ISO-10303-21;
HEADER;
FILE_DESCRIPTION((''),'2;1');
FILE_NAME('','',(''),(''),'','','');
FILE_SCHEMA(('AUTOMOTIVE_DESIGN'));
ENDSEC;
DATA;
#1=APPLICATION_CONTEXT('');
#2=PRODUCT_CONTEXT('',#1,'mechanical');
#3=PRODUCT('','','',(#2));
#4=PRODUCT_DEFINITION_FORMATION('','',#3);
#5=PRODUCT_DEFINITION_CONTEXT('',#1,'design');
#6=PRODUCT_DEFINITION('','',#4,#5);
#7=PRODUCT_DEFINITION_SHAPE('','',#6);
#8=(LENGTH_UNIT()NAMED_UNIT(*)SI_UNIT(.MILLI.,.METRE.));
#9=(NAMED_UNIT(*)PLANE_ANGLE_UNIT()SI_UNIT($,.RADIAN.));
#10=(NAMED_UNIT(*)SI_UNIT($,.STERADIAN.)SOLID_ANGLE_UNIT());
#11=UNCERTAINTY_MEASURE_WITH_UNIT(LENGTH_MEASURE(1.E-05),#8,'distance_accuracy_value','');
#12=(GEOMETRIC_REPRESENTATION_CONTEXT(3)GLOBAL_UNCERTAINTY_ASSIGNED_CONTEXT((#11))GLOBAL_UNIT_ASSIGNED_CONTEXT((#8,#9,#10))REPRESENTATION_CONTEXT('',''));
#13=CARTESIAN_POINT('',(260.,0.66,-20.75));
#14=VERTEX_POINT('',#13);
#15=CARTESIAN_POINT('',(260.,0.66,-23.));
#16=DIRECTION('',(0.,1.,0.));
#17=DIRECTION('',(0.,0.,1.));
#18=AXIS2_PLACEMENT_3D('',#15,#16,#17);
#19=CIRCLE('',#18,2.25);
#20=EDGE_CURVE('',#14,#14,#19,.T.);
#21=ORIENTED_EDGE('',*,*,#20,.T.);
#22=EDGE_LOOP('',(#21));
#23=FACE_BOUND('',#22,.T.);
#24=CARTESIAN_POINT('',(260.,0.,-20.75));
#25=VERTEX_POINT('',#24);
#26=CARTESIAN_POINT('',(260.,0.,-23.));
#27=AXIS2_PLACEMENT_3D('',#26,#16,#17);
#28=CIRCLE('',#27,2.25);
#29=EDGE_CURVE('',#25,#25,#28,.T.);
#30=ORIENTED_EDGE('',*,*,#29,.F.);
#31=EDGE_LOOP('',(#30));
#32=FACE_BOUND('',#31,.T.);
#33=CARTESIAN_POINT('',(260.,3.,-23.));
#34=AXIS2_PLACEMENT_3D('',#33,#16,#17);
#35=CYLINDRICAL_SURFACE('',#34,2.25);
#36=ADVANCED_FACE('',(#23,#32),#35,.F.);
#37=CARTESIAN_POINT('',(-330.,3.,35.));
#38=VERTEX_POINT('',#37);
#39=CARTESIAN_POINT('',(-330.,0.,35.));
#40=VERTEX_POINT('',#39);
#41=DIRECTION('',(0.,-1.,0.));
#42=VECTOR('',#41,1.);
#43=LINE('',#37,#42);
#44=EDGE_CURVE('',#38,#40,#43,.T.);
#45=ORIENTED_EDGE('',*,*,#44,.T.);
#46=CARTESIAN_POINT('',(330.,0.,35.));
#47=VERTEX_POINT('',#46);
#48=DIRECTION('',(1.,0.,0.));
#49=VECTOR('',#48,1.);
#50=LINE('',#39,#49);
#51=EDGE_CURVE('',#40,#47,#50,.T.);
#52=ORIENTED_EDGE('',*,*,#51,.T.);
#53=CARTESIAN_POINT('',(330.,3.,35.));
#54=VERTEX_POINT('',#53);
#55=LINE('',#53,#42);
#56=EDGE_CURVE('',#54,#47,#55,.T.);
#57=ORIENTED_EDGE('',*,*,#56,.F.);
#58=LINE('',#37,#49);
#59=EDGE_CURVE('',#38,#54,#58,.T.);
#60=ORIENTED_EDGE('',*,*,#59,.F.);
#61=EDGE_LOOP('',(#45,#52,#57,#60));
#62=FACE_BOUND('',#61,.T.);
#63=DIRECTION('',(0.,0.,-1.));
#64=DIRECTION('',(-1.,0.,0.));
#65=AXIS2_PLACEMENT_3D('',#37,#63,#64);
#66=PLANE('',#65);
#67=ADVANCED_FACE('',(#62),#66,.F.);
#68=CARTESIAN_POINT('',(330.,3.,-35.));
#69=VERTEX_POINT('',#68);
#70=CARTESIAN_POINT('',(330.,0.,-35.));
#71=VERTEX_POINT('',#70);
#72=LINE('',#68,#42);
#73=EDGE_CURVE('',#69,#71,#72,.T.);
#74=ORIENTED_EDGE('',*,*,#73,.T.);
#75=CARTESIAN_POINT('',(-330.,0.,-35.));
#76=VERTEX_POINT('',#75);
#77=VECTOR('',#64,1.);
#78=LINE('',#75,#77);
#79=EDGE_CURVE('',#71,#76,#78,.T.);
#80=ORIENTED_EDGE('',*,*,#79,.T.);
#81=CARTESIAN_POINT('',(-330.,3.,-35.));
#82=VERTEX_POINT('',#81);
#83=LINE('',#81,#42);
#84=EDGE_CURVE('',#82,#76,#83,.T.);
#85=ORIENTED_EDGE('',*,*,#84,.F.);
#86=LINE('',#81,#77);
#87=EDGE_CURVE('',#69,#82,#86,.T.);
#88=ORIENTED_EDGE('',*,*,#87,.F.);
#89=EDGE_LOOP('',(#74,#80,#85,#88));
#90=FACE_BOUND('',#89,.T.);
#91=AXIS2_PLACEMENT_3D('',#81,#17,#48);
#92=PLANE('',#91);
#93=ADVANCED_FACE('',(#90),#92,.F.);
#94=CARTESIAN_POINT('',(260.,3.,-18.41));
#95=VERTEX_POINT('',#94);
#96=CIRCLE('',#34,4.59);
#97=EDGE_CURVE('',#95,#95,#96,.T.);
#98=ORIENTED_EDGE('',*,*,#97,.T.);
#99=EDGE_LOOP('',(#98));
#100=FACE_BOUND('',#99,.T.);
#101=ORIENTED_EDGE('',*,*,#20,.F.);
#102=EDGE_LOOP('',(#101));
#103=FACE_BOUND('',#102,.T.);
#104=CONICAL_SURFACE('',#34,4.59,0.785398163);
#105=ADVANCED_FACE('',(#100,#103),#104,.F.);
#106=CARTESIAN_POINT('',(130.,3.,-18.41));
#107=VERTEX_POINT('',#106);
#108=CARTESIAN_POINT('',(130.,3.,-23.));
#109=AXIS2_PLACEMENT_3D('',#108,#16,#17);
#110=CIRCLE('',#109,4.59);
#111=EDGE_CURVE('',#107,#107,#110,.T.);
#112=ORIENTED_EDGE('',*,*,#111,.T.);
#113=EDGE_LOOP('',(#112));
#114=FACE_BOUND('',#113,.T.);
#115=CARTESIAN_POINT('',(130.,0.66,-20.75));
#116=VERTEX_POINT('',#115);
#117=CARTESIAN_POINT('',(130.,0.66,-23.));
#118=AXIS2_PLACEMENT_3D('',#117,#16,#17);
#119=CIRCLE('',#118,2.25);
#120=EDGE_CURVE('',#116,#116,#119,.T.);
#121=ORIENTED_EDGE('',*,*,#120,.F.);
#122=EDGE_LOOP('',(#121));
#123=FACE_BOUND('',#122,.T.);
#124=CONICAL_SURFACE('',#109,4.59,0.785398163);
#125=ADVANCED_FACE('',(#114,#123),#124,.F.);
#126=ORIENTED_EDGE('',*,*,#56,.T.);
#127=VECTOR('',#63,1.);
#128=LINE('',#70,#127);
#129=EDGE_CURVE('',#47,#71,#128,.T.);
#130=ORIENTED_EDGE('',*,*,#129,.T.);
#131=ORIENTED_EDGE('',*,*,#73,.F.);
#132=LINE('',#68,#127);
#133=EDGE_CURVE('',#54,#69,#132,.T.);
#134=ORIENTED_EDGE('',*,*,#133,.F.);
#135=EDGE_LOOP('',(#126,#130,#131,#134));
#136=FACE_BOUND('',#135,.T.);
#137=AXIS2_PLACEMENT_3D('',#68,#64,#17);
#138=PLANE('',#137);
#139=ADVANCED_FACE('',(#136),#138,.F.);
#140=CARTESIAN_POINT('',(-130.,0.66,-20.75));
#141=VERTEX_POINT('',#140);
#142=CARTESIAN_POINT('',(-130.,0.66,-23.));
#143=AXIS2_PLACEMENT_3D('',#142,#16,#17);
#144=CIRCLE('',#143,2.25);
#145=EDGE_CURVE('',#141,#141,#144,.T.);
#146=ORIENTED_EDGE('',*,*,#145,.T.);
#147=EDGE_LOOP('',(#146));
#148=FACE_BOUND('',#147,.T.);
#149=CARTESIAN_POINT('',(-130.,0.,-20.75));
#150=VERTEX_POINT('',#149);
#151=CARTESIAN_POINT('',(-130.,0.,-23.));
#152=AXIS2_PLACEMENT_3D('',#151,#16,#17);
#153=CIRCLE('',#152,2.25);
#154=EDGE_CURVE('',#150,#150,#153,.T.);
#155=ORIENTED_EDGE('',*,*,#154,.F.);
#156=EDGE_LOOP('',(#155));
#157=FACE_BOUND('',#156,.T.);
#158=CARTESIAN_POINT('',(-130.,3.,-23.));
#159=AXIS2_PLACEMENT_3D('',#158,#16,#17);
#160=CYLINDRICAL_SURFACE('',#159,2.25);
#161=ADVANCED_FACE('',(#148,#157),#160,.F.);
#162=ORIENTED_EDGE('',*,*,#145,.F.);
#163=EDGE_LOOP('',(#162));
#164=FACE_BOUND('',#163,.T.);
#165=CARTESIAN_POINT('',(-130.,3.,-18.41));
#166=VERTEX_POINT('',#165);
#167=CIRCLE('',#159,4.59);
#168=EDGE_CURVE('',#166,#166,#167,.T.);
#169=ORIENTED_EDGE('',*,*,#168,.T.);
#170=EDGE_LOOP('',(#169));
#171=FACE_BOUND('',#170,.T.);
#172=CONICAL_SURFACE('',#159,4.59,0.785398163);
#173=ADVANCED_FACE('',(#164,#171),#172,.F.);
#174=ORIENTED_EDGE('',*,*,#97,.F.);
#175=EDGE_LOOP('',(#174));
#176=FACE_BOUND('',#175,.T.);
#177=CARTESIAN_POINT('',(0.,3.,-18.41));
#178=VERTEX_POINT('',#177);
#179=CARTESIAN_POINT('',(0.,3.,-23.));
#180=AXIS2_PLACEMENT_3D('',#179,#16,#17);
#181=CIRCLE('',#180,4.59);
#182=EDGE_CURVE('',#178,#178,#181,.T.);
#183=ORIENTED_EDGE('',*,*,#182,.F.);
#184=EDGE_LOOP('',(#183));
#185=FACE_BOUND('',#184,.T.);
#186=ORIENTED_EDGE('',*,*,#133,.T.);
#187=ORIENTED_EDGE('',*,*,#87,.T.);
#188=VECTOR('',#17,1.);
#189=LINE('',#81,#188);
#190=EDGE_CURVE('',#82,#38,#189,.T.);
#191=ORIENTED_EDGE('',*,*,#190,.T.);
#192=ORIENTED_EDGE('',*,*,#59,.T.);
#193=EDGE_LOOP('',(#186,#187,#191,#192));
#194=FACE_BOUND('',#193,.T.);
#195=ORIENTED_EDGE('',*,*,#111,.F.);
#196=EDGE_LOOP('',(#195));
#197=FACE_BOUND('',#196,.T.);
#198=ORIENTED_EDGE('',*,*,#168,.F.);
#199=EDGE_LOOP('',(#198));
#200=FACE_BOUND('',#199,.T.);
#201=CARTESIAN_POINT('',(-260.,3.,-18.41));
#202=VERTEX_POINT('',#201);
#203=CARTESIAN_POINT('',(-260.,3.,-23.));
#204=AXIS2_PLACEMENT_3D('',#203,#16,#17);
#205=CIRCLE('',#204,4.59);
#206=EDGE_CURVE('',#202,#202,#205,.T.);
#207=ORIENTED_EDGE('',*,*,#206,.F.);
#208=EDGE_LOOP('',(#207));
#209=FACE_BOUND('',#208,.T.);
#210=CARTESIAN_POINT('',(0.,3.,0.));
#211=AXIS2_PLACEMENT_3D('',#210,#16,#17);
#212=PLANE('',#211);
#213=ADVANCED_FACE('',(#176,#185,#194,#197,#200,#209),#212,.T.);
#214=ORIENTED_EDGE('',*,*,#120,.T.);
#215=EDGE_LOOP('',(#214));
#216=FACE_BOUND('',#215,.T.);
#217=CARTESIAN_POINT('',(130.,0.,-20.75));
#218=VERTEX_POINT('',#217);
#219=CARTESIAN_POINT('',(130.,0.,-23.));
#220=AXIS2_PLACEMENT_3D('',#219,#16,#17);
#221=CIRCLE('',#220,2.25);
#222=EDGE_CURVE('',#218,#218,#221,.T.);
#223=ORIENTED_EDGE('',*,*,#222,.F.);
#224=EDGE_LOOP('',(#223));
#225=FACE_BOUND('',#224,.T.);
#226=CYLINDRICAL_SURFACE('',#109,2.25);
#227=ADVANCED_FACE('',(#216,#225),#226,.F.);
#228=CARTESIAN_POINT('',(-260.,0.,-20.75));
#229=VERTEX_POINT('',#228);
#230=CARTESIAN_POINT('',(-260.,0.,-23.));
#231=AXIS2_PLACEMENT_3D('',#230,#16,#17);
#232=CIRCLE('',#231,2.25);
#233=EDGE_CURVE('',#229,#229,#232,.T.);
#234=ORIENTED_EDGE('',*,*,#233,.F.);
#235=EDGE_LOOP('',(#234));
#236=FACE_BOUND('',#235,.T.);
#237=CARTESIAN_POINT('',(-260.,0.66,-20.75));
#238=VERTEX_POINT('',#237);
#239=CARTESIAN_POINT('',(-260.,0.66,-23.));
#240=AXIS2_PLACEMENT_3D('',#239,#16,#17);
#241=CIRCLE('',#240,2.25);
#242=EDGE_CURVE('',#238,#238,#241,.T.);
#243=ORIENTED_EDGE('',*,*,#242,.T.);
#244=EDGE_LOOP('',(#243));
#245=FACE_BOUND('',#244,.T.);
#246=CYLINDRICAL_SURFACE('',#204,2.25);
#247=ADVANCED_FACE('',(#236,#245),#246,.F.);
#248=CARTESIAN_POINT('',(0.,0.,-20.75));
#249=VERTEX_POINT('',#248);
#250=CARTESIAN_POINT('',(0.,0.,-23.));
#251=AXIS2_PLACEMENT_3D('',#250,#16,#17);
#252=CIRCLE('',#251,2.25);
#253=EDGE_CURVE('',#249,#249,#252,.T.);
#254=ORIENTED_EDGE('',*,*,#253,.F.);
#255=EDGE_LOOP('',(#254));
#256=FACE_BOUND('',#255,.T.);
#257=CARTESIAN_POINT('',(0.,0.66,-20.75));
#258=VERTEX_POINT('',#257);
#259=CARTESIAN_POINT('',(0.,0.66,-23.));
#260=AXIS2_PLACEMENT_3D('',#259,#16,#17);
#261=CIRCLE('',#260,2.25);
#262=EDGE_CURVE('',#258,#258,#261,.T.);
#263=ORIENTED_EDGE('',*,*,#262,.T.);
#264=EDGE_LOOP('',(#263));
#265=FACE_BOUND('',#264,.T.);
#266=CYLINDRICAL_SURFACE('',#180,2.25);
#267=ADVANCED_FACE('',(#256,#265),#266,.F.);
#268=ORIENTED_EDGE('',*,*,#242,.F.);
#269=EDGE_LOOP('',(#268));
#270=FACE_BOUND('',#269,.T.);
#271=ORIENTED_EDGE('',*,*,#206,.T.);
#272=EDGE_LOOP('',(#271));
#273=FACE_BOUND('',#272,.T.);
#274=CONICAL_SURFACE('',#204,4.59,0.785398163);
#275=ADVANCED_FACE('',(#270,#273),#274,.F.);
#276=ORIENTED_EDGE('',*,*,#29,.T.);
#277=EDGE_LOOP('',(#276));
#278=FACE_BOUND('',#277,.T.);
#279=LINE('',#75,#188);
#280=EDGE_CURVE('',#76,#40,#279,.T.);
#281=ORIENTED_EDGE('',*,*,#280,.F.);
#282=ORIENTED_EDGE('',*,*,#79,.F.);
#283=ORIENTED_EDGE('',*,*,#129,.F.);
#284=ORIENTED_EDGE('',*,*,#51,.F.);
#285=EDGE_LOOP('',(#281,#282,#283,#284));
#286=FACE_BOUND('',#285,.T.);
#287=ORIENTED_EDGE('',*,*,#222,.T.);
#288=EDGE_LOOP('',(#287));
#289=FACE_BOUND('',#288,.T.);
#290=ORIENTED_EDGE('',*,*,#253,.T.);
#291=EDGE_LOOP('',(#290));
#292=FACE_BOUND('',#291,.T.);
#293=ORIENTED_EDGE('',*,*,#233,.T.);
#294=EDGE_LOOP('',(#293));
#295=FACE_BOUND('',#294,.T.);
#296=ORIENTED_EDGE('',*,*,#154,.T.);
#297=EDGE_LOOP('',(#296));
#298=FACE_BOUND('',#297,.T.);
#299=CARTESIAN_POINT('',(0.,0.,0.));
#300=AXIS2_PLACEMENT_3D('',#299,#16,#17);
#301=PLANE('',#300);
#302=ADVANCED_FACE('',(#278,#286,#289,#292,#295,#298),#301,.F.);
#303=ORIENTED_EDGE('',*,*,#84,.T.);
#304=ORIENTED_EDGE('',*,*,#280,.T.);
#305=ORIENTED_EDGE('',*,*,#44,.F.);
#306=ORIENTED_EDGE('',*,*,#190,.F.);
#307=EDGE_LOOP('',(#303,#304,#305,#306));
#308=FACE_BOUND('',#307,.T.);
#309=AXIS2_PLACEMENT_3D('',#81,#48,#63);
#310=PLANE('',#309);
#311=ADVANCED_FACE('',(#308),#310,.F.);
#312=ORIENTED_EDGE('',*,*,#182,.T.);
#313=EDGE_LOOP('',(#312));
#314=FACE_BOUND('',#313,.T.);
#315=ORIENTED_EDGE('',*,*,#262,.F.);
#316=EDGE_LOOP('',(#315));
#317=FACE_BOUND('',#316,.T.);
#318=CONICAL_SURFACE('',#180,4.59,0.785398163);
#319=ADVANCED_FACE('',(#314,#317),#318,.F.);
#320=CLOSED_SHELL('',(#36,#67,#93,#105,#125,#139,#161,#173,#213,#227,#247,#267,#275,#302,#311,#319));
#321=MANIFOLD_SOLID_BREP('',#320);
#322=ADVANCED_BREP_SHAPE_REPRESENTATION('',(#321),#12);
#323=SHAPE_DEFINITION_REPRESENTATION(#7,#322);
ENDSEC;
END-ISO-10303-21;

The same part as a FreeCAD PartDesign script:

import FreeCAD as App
import Part
import Sketcher

V = App.Vector
Q = App.Units.Quantity


def add_polygon(sketch, points):
    """Adds a closed chain of lines whose ends are joined by coincident constraints."""
    first, n = sketch.GeometryCount, len(points)
    for a, b in zip(points, points[1:] + points[:1]):
        sketch.addGeometry(Part.LineSegment(App.Vector(*a, 0), App.Vector(*b, 0)), False)
    for i in range(n):
        sketch.addConstraint(Sketcher.Constraint("Coincident", first + i, 2, first + (i + 1) % n, 1))

doc = App.newDocument("Part")
body = doc.addObject("PartDesign::Body", "Body")

# Sketch on XZ plane
sketch1 = body.newObject("Sketcher::SketchObject", "Sketch")
sketch1.AttachmentSupport = (doc.getObject("XZ_Plane"), [""])
sketch1.MapMode = "FlatFace"
add_polygon(sketch1, [(-330, -35), (-330, 35), (330, 35), (330, -35)])  # lines 0-3
sketch1.addConstraint([
    Sketcher.Constraint("Vertical", 0),
    Sketcher.Constraint("Horizontal", 1),
    Sketcher.Constraint("Vertical", 2),
    Sketcher.Constraint("Horizontal", 3),
    Sketcher.Constraint("Symmetric", 0, 2, 2, 2, -1, 1),
    Sketcher.Constraint("DistanceX", 1, 1, 1, 2, 660.0),
    Sketcher.Constraint("DistanceY", 0, 1, 0, 2, 70.0),
])
pad1 = body.newObject("PartDesign::Pad", "Pad")
pad1.Profile = sketch1
pad1.Length = 3
pad1.Reversed = True

# Sketch on YZ plane
sketch2 = body.newObject("Sketcher::SketchObject", "Sketch001")
sketch2.AttachmentSupport = (doc.getObject("YZ_Plane"), [""])
sketch2.MapMode = "FlatFace"
sketch2.AttachmentOffset = App.Placement(V(0, 0, -260), App.Rotation())
add_polygon(sketch2, [(0, -23), (3, -23), (3, -18.41), (0.66, -20.75), (0, -20.75)])  # lines 0-4
sketch2.addGeometry(Part.LineSegment(V(3, -23, 0), V(0, -23, 0)), True)  # axis
sketch2.addConstraint([
    Sketcher.Constraint("Horizontal", 0),
    Sketcher.Constraint("Vertical", 1),
    Sketcher.Constraint("Horizontal", 3),
    Sketcher.Constraint("Vertical", 4),
    Sketcher.Constraint("Horizontal", 5),
    Sketcher.Constraint("Coincident", 5, 1, 0, 2),
    Sketcher.Constraint("PointOnObject", 3, 2, -2),
    Sketcher.Constraint("PointOnObject", 5, 2, -2),
    Sketcher.Constraint("DistanceX", 0, 1, 0, 2, 3.0),
    Sketcher.Constraint("Angle", 2, Q("-135 deg")),
    Sketcher.Constraint("DistanceY", 0, 2, -1, 1, 23.0),
    Sketcher.Constraint("DistanceX", 3, 2, 3, 1, 0.66),
    Sketcher.Constraint("DistanceY", 1, 1, 1, 2, 4.59),
])
groove = body.newObject("PartDesign::Groove", "Groove")
groove.Profile = sketch2
groove.ReferenceAxis = (sketch2, ["Axis0"])
groove.Angle = 360
doc.recompute()

linearpattern = body.newObject("PartDesign::LinearPattern", "LinearPattern")
linearpattern.Originals = [groove]
linearpattern.Direction = (doc.getObject("X_Axis"), [""])
linearpattern.Mode = "offset"
linearpattern.Offset = 130
linearpattern.Occurrences = 5
body.Tip = linearpattern

doc.recompute()
